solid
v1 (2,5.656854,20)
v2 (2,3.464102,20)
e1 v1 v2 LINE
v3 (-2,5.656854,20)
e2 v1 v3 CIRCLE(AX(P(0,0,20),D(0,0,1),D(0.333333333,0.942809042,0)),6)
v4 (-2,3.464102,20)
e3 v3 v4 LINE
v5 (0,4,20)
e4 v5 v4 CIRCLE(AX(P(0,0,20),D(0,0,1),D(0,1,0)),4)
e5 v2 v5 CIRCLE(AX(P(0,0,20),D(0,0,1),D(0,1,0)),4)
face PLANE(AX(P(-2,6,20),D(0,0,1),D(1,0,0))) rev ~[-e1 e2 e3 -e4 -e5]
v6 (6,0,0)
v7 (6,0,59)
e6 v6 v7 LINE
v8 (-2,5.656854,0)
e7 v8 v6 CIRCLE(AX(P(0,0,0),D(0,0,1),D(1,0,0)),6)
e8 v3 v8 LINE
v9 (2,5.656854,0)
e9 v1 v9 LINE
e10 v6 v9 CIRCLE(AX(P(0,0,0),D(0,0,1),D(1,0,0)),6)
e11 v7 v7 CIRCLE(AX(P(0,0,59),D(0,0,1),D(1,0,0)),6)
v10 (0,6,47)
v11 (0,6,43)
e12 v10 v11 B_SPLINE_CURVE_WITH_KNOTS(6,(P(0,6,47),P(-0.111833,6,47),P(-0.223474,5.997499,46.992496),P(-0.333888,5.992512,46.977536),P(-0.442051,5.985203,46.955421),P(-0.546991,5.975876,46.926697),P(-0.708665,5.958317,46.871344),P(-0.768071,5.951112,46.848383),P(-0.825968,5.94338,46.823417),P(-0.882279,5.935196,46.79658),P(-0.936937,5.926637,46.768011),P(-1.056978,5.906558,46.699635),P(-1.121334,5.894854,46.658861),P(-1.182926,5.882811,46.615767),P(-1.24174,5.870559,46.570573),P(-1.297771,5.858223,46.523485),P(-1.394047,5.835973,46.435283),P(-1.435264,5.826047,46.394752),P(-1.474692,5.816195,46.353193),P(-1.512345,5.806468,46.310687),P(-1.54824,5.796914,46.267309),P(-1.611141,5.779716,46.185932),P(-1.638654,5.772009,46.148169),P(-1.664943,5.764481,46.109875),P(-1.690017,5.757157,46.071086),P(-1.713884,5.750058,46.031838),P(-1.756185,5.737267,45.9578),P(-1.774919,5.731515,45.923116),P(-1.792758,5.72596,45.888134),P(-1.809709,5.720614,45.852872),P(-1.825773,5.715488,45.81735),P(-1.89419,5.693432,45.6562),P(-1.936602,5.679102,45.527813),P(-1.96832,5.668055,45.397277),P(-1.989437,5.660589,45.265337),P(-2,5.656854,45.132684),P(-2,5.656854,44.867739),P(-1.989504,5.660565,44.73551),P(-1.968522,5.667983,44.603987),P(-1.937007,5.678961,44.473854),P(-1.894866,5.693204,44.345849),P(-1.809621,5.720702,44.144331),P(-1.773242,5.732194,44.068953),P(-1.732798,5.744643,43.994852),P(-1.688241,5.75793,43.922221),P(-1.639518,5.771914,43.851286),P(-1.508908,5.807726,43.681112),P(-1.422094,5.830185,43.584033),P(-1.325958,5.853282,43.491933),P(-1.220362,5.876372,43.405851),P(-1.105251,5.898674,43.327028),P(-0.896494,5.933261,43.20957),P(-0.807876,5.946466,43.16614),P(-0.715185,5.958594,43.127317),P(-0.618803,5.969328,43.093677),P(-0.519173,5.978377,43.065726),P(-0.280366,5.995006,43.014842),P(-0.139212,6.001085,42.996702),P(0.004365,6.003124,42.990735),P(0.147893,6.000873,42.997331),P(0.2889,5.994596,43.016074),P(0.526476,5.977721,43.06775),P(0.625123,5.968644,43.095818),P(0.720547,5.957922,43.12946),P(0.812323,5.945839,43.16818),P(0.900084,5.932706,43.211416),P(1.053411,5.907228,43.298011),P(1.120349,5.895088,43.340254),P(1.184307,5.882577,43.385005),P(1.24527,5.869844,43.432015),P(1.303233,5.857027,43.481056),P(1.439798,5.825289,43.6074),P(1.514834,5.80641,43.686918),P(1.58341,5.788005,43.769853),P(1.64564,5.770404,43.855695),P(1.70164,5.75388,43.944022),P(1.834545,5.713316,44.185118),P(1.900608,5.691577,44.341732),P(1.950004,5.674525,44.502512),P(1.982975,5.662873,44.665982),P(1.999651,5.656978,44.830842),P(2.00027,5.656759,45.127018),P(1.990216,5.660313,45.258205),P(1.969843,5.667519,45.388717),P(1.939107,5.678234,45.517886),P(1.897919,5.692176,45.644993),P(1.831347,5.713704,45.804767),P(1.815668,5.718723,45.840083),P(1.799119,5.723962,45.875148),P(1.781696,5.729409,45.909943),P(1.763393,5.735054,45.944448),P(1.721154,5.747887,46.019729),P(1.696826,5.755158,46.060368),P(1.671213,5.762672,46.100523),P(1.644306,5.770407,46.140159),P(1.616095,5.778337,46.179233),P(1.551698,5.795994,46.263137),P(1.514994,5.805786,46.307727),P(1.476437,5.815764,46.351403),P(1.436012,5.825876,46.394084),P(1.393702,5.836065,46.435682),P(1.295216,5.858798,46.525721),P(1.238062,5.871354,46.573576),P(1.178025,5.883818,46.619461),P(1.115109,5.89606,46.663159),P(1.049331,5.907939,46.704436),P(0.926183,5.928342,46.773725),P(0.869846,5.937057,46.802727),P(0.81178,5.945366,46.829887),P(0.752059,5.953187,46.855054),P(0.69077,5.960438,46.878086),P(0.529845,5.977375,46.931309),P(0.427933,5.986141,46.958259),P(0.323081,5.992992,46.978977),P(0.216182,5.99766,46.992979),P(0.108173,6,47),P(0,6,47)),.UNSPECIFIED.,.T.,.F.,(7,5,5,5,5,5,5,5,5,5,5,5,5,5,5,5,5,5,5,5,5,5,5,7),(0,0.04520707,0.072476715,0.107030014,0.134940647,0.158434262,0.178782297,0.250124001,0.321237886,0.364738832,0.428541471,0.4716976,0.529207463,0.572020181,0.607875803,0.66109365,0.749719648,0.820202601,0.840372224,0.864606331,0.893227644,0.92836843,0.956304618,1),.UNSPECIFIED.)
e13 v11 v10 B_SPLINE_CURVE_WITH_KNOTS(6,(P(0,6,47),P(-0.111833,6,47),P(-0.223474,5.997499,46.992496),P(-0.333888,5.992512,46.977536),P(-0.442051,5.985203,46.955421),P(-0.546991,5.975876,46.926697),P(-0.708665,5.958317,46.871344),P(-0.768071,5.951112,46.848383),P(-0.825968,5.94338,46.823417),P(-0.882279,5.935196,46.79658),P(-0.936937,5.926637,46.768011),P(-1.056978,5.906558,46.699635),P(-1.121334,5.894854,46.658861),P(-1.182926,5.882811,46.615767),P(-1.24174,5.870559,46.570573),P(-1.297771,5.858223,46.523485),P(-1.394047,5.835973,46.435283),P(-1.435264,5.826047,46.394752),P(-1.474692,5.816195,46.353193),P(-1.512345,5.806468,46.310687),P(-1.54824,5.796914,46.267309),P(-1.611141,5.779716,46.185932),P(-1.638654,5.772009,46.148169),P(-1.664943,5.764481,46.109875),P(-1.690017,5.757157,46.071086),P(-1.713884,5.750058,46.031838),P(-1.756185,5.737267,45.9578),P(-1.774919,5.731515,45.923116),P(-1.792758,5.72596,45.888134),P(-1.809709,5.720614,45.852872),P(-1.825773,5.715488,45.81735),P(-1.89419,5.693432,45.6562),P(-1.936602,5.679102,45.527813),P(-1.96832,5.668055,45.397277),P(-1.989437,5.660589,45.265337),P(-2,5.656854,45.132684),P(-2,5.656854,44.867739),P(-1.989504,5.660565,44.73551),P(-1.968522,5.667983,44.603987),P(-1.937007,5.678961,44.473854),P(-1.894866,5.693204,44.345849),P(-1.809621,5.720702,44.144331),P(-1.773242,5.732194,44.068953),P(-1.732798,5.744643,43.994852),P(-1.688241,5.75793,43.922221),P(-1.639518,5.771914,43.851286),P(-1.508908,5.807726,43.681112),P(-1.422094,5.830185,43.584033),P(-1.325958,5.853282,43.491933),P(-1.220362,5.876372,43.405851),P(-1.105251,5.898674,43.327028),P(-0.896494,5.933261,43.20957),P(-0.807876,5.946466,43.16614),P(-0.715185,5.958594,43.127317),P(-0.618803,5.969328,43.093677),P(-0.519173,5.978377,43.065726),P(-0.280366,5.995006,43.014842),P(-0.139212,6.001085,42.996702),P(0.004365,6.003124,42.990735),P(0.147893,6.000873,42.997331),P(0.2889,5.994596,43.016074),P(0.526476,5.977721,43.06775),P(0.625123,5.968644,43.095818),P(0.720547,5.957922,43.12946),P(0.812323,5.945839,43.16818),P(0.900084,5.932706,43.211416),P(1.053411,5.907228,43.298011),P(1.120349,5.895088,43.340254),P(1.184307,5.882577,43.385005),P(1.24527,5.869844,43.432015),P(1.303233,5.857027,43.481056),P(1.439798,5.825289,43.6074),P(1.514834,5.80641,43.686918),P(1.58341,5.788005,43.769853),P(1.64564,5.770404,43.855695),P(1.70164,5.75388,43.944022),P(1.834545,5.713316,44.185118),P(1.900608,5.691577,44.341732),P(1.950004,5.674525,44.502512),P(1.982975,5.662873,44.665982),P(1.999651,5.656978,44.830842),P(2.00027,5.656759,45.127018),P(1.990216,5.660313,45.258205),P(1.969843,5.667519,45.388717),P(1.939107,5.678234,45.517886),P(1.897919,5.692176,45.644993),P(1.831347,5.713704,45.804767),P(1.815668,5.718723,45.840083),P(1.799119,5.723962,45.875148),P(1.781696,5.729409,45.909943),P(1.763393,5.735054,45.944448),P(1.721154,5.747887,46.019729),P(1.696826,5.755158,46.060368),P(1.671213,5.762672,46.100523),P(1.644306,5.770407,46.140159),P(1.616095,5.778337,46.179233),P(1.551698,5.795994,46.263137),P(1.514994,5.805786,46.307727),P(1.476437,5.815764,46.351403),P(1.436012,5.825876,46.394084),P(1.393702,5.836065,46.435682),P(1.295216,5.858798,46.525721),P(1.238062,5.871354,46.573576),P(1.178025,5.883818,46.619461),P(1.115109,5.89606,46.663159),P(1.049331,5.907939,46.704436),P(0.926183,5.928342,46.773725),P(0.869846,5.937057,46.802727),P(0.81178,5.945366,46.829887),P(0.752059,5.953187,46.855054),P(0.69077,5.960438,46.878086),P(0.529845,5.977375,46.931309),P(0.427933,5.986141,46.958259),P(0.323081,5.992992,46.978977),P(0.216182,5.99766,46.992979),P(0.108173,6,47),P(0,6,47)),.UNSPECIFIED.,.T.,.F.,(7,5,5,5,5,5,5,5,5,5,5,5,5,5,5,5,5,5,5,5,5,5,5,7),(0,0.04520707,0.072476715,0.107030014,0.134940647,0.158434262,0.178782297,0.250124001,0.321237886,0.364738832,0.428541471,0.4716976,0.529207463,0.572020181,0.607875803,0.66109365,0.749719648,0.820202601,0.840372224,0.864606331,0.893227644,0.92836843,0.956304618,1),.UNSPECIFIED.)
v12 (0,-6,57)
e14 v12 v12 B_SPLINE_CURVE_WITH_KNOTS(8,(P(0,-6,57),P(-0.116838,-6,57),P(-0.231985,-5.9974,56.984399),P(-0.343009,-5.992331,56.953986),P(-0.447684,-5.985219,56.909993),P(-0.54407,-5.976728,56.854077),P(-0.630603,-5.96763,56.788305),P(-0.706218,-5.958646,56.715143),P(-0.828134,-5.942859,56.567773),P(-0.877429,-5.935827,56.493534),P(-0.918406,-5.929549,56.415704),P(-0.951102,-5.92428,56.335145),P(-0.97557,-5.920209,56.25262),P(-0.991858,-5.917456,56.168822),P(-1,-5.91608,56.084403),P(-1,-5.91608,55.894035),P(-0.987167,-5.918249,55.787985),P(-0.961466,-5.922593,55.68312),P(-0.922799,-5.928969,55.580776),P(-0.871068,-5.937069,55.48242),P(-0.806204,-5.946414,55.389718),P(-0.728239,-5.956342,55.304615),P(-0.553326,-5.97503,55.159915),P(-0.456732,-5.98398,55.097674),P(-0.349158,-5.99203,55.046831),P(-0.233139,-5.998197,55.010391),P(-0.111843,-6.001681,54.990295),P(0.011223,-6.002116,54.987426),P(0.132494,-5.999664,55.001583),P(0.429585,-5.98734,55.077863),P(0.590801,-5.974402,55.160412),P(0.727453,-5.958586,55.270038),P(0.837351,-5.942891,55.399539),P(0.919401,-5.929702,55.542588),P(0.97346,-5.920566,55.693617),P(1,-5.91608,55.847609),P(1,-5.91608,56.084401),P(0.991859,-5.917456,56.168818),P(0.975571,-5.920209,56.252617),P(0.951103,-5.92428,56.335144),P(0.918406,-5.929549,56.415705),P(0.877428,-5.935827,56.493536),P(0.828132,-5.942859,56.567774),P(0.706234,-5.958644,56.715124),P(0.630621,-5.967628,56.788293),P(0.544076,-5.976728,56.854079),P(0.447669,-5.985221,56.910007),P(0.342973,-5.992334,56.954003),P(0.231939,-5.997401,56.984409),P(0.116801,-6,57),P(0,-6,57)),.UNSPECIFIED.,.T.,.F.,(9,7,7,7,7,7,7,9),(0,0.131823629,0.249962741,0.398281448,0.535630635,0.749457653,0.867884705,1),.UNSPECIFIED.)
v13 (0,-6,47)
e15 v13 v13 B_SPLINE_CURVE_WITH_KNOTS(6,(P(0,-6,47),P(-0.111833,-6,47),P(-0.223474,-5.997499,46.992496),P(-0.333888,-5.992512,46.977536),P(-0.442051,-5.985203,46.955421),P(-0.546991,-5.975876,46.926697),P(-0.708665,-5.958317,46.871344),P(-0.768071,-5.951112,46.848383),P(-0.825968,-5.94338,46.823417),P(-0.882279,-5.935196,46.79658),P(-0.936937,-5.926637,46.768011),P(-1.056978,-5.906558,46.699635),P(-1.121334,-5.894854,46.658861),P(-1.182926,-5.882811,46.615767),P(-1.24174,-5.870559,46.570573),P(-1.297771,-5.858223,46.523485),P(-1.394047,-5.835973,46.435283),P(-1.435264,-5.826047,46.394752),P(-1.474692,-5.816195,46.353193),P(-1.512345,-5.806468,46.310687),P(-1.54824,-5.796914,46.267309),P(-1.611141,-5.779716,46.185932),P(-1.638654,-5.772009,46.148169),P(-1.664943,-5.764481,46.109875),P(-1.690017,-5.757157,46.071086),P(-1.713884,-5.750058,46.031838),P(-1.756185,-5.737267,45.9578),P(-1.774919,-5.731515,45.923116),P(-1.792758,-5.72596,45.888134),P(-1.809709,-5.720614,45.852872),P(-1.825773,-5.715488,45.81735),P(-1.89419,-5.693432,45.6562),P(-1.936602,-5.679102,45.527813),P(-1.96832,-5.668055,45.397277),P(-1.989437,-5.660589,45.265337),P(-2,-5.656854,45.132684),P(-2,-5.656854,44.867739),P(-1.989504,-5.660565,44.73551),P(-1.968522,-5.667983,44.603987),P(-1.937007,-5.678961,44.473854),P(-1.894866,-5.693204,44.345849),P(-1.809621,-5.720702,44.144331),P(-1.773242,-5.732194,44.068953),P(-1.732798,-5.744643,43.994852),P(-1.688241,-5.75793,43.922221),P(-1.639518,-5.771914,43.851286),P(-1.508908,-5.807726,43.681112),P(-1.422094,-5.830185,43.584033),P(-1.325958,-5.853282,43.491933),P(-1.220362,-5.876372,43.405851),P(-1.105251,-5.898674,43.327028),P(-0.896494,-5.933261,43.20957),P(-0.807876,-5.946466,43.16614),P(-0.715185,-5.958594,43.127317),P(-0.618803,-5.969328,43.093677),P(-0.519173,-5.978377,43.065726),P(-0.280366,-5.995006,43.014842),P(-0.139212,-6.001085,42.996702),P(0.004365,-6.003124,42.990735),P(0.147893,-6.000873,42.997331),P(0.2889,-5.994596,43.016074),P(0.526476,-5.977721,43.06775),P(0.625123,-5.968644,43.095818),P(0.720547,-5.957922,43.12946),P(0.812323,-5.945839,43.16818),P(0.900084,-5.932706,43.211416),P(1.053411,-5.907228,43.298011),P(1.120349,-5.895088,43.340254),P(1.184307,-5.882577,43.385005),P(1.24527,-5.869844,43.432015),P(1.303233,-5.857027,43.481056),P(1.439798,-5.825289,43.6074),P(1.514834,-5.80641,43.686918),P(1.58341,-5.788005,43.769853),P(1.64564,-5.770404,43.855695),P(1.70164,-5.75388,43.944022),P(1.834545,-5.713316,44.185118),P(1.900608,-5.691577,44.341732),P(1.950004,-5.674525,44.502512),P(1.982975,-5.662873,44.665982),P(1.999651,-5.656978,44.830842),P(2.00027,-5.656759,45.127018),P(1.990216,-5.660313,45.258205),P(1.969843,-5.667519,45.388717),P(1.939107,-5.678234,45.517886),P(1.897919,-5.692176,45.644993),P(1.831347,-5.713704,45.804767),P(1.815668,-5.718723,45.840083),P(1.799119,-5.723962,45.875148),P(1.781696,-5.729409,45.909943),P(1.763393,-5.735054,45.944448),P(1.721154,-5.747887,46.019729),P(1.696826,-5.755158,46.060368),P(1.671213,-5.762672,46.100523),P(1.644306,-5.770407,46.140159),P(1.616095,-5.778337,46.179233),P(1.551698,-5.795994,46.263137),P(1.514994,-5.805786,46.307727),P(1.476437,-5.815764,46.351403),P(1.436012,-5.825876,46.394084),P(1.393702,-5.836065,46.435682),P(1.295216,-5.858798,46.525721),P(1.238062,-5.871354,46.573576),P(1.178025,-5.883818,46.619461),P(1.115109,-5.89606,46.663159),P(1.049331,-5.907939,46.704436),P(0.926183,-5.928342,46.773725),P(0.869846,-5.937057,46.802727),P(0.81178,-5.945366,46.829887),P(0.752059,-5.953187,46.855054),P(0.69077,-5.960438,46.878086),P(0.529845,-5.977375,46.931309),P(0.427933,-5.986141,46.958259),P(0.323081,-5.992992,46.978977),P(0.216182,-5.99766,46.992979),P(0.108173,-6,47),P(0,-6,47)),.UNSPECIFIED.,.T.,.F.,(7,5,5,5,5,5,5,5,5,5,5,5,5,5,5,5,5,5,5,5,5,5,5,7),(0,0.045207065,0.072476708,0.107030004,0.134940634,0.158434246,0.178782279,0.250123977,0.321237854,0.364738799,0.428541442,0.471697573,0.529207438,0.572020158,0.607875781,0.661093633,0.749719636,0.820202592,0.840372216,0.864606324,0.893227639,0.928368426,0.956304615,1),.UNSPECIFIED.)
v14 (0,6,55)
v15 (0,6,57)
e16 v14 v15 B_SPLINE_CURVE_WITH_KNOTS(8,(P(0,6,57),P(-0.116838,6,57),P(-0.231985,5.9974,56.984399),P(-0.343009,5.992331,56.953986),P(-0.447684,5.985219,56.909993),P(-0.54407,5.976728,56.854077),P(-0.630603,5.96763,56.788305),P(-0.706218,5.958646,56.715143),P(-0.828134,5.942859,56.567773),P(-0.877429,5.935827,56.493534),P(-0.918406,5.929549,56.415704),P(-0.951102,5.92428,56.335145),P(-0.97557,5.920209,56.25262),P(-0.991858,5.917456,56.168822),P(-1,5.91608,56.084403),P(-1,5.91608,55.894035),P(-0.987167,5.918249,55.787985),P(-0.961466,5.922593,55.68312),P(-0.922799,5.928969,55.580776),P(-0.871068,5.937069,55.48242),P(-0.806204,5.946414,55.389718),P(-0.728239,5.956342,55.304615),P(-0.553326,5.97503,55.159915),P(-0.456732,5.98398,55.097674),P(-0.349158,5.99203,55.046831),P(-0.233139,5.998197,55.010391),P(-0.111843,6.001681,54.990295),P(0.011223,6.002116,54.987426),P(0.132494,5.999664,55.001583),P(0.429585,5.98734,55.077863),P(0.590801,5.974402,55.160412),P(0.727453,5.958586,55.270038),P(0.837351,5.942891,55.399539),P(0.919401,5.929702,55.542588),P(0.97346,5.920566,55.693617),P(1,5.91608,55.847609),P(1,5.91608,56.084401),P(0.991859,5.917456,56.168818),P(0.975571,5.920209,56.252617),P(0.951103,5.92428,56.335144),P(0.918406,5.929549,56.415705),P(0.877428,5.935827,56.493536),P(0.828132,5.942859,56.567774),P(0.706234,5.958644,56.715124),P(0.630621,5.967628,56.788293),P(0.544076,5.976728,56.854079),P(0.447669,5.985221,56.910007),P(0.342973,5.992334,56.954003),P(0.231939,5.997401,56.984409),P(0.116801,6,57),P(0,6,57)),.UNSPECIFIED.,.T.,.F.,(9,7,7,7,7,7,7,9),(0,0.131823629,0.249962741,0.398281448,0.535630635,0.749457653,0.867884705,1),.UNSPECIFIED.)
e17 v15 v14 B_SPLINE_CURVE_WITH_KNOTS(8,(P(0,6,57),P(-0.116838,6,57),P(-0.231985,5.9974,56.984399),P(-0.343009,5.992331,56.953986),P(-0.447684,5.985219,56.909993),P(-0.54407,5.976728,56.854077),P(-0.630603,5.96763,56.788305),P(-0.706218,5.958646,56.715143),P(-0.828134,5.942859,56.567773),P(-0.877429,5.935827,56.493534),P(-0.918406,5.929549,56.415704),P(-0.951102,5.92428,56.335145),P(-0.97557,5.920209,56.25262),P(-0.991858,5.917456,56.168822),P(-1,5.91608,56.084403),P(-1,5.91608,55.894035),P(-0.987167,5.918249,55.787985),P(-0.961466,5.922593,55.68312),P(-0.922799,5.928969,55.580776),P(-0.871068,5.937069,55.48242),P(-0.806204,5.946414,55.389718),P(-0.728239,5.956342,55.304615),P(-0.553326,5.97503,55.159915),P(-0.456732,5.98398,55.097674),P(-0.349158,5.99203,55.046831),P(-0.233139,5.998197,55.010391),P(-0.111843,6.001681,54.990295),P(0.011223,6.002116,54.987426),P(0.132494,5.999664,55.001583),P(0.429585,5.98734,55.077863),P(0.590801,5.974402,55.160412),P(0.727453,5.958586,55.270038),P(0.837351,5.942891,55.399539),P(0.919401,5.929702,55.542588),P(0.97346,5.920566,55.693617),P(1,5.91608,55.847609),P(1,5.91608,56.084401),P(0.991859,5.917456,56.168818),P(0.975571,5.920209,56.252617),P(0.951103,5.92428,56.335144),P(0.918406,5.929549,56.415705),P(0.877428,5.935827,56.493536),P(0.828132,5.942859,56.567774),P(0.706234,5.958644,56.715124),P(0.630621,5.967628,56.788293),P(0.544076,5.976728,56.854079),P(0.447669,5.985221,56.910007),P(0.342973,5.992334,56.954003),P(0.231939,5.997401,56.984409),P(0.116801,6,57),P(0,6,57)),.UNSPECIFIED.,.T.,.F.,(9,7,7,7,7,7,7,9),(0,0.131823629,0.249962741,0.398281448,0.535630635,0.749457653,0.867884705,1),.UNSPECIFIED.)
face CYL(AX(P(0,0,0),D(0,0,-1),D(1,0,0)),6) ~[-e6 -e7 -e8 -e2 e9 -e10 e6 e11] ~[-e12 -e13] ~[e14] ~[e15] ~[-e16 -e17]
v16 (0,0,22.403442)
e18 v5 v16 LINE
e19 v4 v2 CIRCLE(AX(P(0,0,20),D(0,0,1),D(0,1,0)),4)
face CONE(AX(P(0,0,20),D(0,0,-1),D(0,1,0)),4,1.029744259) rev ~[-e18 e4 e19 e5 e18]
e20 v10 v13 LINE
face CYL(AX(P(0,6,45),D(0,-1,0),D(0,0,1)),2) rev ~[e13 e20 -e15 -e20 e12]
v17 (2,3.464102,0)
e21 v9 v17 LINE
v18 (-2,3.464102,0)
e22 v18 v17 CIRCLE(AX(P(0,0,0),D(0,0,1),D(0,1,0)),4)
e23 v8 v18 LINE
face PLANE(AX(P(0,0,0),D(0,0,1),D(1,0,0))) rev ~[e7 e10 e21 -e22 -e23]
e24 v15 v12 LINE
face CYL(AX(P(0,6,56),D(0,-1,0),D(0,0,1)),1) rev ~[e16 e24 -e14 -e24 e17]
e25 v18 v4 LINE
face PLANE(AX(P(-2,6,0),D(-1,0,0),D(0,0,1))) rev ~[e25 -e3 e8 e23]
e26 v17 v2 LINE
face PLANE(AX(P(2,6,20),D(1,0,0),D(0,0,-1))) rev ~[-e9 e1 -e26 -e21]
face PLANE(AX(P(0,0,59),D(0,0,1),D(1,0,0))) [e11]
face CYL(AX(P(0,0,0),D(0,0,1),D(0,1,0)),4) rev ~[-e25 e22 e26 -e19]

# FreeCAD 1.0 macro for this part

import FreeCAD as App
import Part
import Sketcher
from FreeCAD import Vector

doc = App.newDocument("Part")
params = doc.addObject("Spreadsheet::Sheet", "Params")
for row, (alias, value) in enumerate([
    ("sketch1_diameter", "12 mm"),
    ("pad1_length", "59 mm"),
    ("sketch2_height", "20 mm"),
    ("pocket1_length", "6 mm"),
    ("sketch3_diameter", "8 mm"),
    ("hole_diameter", "8 mm"),
    ("hole_depth", "20 mm"),
    ("sketch4_diameter", "4 mm"),
    ("hole2_diameter", "4 mm"),
    ("sketch5_diameter", "2 mm"),
    ("hole3_diameter", "2 mm"),
], start=1):
    params.set(f"A{row}", alias)
    params.set(f"B{row}", "=" + value)
    params.setAlias(f"B{row}", alias)

body = doc.addObject("PartDesign::Body", "Body")

sketch1 = body.newObject("Sketcher::SketchObject", "Sketch")
sketch1.AttachmentSupport = (doc.getObject("XY_Plane"), [""])
sketch1.MapMode = "FlatFace"
sketch1.addGeometry(Part.Circle(Vector(0, 0, 0), Vector(0, 0, 1), 6), False)
sketch1.addConstraint([
    Sketcher.Constraint("Coincident", 0, 3, -1, 1),
    Sketcher.Constraint("Diameter", 0, 12.0),
])
sketch1.setExpression("Constraints[1]", "Params.sketch1_diameter")
pad1 = body.newObject("PartDesign::Pad", "Pad")
pad1.Profile = sketch1
pad1.setExpression("Length", "Params.pad1_length")

sketch2 = body.newObject("Sketcher::SketchObject", "Sketch001")
sketch2.AttachmentSupport = (doc.getObject("XZ_Plane"), [""])
sketch2.MapMode = "FlatFace"
sketch2.AttachmentOffset = App.Placement(Vector(0, 0, -6), App.Rotation())
sketch2.addGeometry([
    Part.LineSegment(Vector(-2, 20, 0), Vector(2, 20, 0)),
    Part.LineSegment(Vector(2, 20, 0), Vector(2, 0, 0)),
    Part.LineSegment(Vector(2, 0, 0), Vector(-2, 0, 0)),
    Part.LineSegment(Vector(-2, 0, 0), Vector(-2, 20, 0)),
], False)
sketch2.addConstraint([
    Sketcher.Constraint("Coincident", 0, 2, 1, 1),
    Sketcher.Constraint("Coincident", 1, 2, 2, 1),
    Sketcher.Constraint("Coincident", 2, 2, 3, 1),
    Sketcher.Constraint("Coincident", 3, 2, 0, 1),
    Sketcher.Constraint("Horizontal", 0),
    Sketcher.Constraint("Vertical", 1),
    Sketcher.Constraint("Horizontal", 2),
    Sketcher.Constraint("Vertical", 3),
    Sketcher.Constraint("Symmetric", 1, 2, 2, 2, -1, 1),
    Sketcher.Constraint("DistanceY", 1, 2, 1, 1, 20.0),
    Sketcher.Constraint("DistanceX", -1, 1, 0, 2, 2.0),
])
sketch2.setExpression("Constraints[9]", "Params.sketch2_height")
pocket1 = body.newObject("PartDesign::Pocket", "Pocket")
pocket1.Profile = sketch2
pocket1.setExpression("Length", "Params.pocket1_length")
pocket1.Reversed = True

sketch3 = body.newObject("Sketcher::SketchObject", "Sketch002")
sketch3.AttachmentSupport = (doc.getObject("XY_Plane"), [""])
sketch3.MapMode = "FlatFace"
sketch3.addGeometry(Part.Circle(Vector(0, 0, 0), Vector(0, 0, 1), 4), False)
sketch3.addConstraint([
    Sketcher.Constraint("Coincident", 0, 3, -1, 1),
    Sketcher.Constraint("Diameter", 0, 8.0),
])
sketch3.setExpression("Constraints[1]", "Params.sketch3_diameter")
doc.recompute()
hole = body.newObject("PartDesign::Hole", "Hole")
hole.Profile = sketch3
hole.ThreadType = "None"
hole.setExpression("Diameter", "Params.hole_diameter")
hole.DepthType = "Dimension"
hole.setExpression("Depth", "Params.hole_depth")
hole.DrillPoint = "Angled"
hole.DrillPointAngle = 118
hole.Reversed = True

sketch4 = body.newObject("Sketcher::SketchObject", "Sketch003")
sketch4.AttachmentSupport = (doc.getObject("XZ_Plane"), [""])
sketch4.MapMode = "FlatFace"
sketch4.AttachmentOffset = App.Placement(Vector(0, 0, -6), App.Rotation())
sketch4.addGeometry(Part.Circle(Vector(0, 45, 0), Vector(0, 0, 1), 2), False)
sketch4.addConstraint([
    Sketcher.Constraint("PointOnObject", 0, 3, -2),
    Sketcher.Constraint("Diameter", 0, 4.0),
    Sketcher.Constraint("DistanceY", -1, 1, 0, 3, 45.0),
])
sketch4.setExpression("Constraints[1]", "Params.sketch4_diameter")
doc.recompute()
hole2 = body.newObject("PartDesign::Hole", "Hole001")
hole2.Profile = sketch4
hole2.ThreadType = "None"
hole2.setExpression("Diameter", "Params.hole2_diameter")
hole2.DepthType = "ThroughAll"
hole2.Reversed = True

sketch5 = body.newObject("Sketcher::SketchObject", "Sketch004")
sketch5.AttachmentSupport = (doc.getObject("XZ_Plane"), [""])
sketch5.MapMode = "FlatFace"
sketch5.AttachmentOffset = App.Placement(Vector(0, 0, -6), App.Rotation())
sketch5.addGeometry(Part.Circle(Vector(0, 56, 0), Vector(0, 0, 1), 1), False)
sketch5.addConstraint([
    Sketcher.Constraint("PointOnObject", 0, 3, -2),
    Sketcher.Constraint("Diameter", 0, 2.0),
    Sketcher.Constraint("DistanceY", -1, 1, 0, 3, 56.0),
])
sketch5.setExpression("Constraints[1]", "Params.sketch5_diameter")
doc.recompute()
hole3 = body.newObject("PartDesign::Hole", "Hole002")
hole3.Profile = sketch5
hole3.ThreadType = "None"
hole3.setExpression("Diameter", "Params.hole3_diameter")
hole3.DepthType = "ThroughAll"
hole3.Reversed = True

doc.recompute()
